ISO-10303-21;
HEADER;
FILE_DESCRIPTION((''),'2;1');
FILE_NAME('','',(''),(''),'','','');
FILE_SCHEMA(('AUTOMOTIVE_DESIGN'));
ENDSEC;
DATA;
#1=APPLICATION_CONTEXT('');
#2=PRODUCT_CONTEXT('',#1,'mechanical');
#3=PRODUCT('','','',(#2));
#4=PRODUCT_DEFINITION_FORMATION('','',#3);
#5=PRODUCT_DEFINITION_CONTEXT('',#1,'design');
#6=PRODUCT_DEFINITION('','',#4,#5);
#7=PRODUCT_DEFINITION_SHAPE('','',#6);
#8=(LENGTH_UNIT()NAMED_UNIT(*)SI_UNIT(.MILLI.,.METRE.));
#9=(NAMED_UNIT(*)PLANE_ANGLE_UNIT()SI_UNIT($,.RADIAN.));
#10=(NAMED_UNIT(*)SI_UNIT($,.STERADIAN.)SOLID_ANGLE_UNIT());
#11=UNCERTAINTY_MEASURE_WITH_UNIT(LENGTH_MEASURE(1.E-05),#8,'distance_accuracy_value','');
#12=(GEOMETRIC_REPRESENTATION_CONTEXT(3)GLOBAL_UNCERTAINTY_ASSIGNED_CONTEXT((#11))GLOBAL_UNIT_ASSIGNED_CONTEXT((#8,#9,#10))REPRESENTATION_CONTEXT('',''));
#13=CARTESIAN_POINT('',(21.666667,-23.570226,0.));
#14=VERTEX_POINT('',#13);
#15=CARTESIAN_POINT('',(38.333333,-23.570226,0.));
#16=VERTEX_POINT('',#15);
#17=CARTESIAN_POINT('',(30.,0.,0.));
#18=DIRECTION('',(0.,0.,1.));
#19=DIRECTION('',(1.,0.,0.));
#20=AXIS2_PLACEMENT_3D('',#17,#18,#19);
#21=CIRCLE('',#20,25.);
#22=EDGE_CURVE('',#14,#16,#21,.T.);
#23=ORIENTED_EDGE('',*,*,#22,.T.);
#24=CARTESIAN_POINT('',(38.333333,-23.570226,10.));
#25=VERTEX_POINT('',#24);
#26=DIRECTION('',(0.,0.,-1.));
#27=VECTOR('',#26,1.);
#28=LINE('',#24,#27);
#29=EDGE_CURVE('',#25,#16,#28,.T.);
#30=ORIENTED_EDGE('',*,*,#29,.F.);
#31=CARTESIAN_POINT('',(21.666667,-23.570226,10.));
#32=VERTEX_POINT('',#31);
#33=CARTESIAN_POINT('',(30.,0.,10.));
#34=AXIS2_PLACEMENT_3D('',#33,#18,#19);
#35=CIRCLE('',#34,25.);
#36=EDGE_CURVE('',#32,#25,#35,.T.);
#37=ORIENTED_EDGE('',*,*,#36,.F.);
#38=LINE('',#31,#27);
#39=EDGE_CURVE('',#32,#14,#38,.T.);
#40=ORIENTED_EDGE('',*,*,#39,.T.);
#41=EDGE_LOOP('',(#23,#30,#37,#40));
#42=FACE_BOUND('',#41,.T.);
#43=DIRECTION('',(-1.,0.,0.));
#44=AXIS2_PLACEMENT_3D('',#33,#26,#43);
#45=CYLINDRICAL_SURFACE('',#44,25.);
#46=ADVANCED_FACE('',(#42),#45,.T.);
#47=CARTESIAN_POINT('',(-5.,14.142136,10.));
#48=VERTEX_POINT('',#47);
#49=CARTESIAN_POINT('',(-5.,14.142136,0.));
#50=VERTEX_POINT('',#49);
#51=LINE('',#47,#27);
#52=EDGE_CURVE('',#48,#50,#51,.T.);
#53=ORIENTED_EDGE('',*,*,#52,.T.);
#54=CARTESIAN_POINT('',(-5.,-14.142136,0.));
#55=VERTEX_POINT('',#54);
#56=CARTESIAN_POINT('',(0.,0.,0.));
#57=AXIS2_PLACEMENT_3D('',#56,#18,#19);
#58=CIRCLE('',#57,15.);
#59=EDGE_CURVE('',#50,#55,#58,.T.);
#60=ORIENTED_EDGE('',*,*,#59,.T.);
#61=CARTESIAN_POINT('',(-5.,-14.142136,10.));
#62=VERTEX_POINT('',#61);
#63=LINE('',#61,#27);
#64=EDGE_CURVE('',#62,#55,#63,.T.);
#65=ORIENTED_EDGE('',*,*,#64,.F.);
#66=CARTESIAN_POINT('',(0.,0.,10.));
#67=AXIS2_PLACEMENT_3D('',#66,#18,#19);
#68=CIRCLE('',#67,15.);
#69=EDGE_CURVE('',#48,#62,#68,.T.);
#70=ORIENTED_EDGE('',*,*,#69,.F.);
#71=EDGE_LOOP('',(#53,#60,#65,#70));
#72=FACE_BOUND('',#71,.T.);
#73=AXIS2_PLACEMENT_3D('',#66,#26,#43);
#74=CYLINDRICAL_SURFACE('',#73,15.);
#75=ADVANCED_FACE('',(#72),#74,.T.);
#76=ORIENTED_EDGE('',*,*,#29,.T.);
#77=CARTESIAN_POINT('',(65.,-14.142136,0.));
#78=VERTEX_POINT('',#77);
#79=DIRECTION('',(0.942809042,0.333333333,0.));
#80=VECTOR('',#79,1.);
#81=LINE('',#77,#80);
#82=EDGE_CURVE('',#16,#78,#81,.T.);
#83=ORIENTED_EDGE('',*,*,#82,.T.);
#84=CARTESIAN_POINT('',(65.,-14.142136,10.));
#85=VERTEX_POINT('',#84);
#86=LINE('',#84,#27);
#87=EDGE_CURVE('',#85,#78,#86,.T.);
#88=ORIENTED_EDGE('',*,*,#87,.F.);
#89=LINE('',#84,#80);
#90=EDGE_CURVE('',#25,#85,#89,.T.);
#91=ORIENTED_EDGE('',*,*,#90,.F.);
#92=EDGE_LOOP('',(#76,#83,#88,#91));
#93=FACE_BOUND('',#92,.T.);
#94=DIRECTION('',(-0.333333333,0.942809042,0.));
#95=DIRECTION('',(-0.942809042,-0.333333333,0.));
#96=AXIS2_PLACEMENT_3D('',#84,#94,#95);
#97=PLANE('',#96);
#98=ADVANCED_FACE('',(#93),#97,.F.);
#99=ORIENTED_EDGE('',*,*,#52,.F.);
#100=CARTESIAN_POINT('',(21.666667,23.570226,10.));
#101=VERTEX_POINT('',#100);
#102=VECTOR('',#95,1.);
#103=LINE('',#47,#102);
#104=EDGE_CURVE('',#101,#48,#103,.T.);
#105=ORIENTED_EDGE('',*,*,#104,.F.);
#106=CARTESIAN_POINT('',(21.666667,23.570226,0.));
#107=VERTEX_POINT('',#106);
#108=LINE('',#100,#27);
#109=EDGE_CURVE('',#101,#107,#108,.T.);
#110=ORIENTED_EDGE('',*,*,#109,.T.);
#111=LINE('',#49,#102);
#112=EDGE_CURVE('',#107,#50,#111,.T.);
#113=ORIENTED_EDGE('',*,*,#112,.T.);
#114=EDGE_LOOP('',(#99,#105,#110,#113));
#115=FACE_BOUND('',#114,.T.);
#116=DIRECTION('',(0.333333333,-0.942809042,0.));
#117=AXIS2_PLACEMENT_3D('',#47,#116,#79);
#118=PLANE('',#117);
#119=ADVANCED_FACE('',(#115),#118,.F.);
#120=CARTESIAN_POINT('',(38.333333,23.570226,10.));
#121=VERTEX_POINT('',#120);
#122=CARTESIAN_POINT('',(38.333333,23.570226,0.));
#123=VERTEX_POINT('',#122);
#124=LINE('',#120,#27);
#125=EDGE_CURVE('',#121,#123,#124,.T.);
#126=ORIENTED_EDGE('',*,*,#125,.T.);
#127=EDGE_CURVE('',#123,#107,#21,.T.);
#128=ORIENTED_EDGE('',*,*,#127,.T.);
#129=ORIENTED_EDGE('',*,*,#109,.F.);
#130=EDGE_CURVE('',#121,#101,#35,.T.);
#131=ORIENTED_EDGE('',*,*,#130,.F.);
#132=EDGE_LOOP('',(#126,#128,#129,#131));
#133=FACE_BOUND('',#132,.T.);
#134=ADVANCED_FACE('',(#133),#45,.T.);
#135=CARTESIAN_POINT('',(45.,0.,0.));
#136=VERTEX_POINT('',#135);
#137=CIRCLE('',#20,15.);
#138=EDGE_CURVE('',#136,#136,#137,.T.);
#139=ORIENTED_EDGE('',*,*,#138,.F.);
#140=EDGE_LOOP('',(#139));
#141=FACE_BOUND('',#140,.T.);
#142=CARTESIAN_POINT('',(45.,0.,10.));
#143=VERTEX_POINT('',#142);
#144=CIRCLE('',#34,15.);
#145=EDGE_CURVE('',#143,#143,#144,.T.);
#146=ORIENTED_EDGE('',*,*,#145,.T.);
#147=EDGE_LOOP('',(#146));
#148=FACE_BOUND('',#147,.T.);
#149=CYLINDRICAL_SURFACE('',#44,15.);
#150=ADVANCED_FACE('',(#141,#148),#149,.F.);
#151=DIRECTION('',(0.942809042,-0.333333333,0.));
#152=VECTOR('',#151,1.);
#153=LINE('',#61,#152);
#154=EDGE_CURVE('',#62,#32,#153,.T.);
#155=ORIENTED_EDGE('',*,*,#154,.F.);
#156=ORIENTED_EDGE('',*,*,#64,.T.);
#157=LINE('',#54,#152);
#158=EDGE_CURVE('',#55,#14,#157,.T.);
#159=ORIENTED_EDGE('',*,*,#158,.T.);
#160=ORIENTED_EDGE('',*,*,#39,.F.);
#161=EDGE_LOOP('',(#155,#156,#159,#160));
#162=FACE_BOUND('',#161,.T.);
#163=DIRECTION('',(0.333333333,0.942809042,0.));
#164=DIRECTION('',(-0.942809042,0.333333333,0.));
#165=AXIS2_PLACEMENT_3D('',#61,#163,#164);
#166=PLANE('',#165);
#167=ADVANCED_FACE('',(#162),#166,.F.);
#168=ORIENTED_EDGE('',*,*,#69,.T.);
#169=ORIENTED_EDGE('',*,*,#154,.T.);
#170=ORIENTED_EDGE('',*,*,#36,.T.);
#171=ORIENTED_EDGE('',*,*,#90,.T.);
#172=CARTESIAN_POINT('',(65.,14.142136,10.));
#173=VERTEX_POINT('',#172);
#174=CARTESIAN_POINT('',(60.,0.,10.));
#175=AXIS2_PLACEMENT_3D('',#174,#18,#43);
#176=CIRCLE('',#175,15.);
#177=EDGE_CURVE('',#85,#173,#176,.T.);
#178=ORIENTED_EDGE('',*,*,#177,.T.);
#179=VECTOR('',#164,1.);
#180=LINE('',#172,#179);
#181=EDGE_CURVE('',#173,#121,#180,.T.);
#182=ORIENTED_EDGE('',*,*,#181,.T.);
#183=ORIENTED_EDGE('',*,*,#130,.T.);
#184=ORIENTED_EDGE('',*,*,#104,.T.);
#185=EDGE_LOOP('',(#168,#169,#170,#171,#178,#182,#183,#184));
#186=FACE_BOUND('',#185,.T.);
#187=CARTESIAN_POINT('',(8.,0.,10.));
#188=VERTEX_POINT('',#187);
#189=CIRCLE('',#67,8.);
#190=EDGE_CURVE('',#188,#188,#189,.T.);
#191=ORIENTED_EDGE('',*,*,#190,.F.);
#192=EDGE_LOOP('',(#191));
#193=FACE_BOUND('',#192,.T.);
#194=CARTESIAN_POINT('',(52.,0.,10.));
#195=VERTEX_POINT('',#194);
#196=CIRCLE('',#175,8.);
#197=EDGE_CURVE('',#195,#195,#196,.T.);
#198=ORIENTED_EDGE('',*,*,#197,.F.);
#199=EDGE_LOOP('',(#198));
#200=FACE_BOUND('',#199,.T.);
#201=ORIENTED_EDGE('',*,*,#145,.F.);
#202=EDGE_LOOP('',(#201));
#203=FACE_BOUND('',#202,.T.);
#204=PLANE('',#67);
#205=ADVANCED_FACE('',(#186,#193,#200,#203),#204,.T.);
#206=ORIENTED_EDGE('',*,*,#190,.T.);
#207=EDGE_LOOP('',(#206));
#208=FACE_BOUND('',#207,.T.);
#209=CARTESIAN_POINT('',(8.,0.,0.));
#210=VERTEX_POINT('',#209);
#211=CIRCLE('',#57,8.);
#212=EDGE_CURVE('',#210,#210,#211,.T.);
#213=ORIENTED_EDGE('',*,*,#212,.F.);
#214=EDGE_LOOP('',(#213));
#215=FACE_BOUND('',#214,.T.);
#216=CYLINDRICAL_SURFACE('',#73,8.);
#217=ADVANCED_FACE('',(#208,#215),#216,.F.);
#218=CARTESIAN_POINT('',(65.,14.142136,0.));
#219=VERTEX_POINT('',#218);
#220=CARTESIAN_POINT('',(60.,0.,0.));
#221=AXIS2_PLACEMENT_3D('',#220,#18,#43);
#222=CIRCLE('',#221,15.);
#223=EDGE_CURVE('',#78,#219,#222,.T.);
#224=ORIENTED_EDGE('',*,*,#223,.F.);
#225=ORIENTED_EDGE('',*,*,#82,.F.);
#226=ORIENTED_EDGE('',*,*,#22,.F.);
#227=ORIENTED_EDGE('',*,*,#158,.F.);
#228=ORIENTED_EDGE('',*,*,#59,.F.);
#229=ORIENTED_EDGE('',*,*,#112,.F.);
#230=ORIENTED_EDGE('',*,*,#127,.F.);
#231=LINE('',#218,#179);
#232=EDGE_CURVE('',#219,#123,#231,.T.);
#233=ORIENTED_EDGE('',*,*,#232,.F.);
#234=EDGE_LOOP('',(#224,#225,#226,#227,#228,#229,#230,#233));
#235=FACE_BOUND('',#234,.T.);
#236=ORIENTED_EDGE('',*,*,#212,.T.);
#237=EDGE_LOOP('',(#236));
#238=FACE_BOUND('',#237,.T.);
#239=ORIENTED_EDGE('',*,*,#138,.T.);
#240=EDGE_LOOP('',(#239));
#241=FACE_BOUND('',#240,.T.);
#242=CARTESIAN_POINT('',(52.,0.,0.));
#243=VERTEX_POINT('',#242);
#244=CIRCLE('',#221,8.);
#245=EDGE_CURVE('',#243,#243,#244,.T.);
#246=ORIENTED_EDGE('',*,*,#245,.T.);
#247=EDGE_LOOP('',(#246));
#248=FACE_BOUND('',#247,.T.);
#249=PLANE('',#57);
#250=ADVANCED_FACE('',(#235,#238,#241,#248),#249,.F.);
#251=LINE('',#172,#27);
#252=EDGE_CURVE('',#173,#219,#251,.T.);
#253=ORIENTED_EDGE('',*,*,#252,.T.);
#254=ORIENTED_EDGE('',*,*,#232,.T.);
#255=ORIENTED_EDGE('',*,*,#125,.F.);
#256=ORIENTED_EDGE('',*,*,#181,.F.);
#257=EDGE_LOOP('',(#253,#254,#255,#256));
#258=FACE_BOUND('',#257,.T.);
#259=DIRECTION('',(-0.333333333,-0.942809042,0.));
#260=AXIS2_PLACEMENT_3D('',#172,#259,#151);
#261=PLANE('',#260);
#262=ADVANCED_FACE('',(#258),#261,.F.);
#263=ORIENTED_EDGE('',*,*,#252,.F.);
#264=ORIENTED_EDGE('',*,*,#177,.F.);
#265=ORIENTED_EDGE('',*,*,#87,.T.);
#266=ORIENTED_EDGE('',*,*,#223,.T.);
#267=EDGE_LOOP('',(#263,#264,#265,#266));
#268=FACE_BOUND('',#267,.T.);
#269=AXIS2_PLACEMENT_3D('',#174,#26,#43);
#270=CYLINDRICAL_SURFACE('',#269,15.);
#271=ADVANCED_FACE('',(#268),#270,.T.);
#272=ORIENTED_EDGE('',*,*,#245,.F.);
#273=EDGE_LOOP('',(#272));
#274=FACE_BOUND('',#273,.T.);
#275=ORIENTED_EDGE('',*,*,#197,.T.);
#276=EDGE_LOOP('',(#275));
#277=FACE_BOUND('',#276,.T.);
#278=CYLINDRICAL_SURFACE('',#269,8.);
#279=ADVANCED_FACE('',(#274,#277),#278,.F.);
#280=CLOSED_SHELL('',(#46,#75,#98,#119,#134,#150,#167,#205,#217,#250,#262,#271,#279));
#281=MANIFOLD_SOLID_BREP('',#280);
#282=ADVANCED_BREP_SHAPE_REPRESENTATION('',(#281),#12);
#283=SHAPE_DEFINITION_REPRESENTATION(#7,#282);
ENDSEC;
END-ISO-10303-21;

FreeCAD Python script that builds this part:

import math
import FreeCAD as App
import Part
import Sketcher
from FreeCAD import Vector
Q = App.Units.Quantity

doc = App.newDocument("Part")
body = doc.addObject("PartDesign::Body", "Body")

sketch1 = doc.addObject("Sketcher::SketchObject", "Sketch")
body.addObject(sketch1)
sketch1.AttachmentSupport = (doc.XY_Plane, [""])
sketch1.MapMode = "FlatFace"
sketch1.addGeometry([
    Part.LineSegment(Vector(21.666667, 23.570226, 0), Vector(-5, 14.142136, 0)),
    Part.ArcOfCircle(Part.Circle(Vector(0, 0, 0), Vector(0, 0, 1), 15), math.radians(109.471221), math.radians(250.528779)),
    Part.LineSegment(Vector(-5, -14.142136, 0), Vector(21.666667, -23.570226, 0)),
    Part.ArcOfCircle(Part.Circle(Vector(30, 0, 0), Vector(0, 0, 1), 25), math.radians(-109.471221), math.radians(-70.528779)),
    Part.LineSegment(Vector(38.333333, -23.570226, 0), Vector(65, -14.142136, 0)),
    Part.ArcOfCircle(Part.Circle(Vector(60, 0, 0), Vector(0, 0, 1), 15), math.radians(-70.528779), math.radians(70.528779)),
    Part.LineSegment(Vector(65, 14.142136, 0), Vector(38.333333, 23.570226, 0)),
    Part.ArcOfCircle(Part.Circle(Vector(30, 0, 0), Vector(0, 0, 1), 25), math.radians(70.528779), math.radians(109.471221)),
    Part.Circle(Vector(60, 0, 0), Vector(0, 0, 1), 8),
    Part.Circle(Vector(30, 0, 0), Vector(0, 0, 1), 15),
    Part.Circle(Vector(0, 0, 0), Vector(0, 0, 1), 8),
], False)
sketch1.addConstraint([
    Sketcher.Constraint("Tangent", 0, 2, 1, 1),
    Sketcher.Constraint("Tangent", 1, 2, 2, 1),
    Sketcher.Constraint("Tangent", 2, 2, 3, 1),
    Sketcher.Constraint("Tangent", 3, 2, 4, 1),
    Sketcher.Constraint("Tangent", 4, 2, 5, 1),
    Sketcher.Constraint("Tangent", 5, 2, 6, 1),
    Sketcher.Constraint("Tangent", 6, 2, 7, 1),
    Sketcher.Constraint("Tangent", 7, 2, 0, 1),
    Sketcher.Constraint("Coincident", 1, 3, -1, 1),
    Sketcher.Constraint("Coincident", 10, 3, -1, 1),
    Sketcher.Constraint("Coincident", 7, 3, 3, 3),
    Sketcher.Constraint("Coincident", 8, 3, 5, 3),
    Sketcher.Constraint("Coincident", 9, 3, 3, 3),
    Sketcher.Constraint("Equal", 1, 5),
    Sketcher.Constraint("Equal", 3, 7),
    Sketcher.Constraint("Equal", 5, 9),
    Sketcher.Constraint("Equal", 8, 10),
    Sketcher.Constraint("Symmetric", 4, 2, 5, 2, -1),
    Sketcher.Constraint("Parallel", 0, 4),
    Sketcher.Constraint("Diameter", 8, Q("16 mm")),
    Sketcher.Constraint("Diameter", 9, Q("30 mm")),
    Sketcher.Constraint("Radius", 3, Q("25 mm")),
    Sketcher.Constraint("DistanceX", -1, 1, 3, 3, Q("30 mm")),
])
pad1 = doc.addObject("PartDesign::Pad", "Pad")
body.addObject(pad1)
pad1.Profile = sketch1
pad1.Length = 10

doc.recompute()
